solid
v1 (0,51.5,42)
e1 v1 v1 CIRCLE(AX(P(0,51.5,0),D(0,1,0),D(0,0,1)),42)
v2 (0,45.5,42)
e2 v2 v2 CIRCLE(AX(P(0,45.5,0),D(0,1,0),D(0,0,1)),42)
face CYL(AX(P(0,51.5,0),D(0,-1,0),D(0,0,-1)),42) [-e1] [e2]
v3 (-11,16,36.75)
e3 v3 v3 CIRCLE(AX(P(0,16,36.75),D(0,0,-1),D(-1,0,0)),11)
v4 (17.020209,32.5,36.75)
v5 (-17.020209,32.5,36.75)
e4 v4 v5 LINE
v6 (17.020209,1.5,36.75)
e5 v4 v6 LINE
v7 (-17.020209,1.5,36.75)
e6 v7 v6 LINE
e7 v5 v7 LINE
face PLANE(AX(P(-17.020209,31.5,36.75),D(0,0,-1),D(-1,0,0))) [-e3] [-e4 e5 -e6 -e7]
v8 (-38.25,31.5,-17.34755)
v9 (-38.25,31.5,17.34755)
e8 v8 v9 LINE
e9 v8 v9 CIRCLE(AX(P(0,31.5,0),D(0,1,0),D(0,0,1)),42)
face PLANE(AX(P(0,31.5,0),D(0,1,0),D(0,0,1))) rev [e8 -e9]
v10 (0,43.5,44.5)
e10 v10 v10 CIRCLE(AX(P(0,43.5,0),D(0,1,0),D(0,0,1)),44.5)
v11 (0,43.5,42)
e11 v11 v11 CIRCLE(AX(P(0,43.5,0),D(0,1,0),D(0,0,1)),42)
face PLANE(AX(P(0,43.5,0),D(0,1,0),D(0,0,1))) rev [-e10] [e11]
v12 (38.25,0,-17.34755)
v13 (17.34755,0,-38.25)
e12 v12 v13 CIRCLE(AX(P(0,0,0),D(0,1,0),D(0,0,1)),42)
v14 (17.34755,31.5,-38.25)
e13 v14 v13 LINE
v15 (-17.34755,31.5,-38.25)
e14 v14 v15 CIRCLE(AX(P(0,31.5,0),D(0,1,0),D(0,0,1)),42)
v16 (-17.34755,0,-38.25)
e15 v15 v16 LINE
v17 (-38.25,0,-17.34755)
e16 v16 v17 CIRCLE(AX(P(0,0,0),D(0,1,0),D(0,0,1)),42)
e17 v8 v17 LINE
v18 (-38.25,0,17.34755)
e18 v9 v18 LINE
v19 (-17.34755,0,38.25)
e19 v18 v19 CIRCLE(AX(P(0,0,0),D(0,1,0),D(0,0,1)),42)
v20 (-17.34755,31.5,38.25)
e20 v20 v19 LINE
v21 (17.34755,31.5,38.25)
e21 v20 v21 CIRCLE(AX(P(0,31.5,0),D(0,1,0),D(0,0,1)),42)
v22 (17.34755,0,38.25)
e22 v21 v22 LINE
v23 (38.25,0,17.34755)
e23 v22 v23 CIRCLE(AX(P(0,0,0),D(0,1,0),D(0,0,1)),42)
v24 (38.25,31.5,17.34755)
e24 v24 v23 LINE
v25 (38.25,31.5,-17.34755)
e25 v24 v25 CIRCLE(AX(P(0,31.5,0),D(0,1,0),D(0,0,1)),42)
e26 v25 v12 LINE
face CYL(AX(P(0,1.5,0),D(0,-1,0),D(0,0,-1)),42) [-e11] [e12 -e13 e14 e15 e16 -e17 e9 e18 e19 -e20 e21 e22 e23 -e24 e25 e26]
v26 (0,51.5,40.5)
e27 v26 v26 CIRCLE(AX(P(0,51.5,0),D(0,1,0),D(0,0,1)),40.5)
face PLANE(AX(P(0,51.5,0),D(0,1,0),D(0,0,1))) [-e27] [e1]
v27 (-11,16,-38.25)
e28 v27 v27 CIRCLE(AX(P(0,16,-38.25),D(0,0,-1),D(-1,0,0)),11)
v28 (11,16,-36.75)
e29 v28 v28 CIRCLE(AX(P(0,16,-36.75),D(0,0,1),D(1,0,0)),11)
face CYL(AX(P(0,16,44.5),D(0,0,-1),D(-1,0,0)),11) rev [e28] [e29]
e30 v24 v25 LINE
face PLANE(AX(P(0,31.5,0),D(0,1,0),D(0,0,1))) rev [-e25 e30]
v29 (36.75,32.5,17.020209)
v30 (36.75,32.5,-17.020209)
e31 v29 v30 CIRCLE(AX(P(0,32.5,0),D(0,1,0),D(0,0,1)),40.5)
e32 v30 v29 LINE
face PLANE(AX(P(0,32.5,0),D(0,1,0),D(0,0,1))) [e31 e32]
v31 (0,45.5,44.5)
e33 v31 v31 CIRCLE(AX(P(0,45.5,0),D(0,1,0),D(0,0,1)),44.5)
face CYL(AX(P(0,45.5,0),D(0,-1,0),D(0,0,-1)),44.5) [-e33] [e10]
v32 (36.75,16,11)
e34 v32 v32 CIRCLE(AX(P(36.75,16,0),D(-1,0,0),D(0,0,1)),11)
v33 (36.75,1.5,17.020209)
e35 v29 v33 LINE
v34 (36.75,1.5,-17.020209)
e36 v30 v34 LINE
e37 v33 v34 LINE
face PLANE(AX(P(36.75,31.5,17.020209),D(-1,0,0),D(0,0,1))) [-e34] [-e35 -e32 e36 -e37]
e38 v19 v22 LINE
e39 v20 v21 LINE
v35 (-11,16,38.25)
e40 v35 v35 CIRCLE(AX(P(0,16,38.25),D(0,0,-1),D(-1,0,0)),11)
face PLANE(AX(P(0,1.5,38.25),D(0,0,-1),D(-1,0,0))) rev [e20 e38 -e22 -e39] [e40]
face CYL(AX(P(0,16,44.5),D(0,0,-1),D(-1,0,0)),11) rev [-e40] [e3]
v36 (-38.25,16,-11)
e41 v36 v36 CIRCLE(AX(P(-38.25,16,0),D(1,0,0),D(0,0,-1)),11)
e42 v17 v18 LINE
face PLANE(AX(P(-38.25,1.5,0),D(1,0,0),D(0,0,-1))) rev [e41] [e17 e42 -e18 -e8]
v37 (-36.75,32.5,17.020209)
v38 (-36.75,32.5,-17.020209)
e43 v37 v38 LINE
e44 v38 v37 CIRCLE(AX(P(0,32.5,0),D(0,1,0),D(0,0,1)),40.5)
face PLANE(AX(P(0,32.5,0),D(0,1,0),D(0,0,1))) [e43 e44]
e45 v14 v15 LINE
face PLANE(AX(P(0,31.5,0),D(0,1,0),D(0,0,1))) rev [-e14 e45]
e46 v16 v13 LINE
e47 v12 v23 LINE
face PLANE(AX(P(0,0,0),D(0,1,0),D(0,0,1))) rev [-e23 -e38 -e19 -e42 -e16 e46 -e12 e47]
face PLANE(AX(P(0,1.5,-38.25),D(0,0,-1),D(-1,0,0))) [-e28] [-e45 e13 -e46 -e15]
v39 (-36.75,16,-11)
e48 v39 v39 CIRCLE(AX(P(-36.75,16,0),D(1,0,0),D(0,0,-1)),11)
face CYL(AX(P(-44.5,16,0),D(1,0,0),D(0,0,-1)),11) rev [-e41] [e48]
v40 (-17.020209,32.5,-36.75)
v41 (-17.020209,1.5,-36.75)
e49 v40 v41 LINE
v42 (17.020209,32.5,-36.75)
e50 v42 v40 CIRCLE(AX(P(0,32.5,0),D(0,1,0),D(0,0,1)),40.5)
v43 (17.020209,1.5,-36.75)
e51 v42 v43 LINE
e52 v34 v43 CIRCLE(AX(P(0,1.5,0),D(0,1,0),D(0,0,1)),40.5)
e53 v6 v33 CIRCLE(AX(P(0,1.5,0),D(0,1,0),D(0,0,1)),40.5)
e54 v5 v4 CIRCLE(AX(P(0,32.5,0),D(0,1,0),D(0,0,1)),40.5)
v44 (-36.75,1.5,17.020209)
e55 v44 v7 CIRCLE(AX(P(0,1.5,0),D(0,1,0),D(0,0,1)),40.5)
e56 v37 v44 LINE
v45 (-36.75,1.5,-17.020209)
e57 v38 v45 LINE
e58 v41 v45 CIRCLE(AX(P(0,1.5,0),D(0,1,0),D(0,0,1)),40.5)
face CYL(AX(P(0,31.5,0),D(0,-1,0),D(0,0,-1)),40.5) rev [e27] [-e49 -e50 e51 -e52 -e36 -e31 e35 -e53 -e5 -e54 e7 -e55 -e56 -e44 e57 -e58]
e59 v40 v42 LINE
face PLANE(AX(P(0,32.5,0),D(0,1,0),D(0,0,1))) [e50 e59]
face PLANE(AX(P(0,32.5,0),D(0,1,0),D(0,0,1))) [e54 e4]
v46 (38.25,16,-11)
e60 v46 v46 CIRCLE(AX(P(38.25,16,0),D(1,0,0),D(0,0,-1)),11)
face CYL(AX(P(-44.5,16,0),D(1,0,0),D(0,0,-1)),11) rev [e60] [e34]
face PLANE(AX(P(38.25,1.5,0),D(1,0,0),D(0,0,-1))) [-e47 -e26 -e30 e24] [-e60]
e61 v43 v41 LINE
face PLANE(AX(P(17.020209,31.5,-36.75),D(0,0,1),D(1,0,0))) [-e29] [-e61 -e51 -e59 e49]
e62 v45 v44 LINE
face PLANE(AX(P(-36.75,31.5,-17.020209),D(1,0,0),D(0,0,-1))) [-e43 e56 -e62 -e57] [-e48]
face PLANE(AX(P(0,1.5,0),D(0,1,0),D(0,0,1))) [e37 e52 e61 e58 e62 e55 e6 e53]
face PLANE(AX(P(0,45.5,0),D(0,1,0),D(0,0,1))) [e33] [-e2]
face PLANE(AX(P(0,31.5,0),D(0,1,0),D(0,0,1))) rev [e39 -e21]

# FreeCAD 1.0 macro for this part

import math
import FreeCAD as App
import Part
import Sketcher

V = App.Vector
Q = App.Units.Quantity

doc = App.newDocument("Part")
params = doc.addObject("Spreadsheet::Sheet", "Params")
for row, (alias, value) in enumerate([
    ("sketch1_radius", "42 mm"),
    ("pad1_length", "1.5 mm"),
    ("sketch2_radius", "42 mm"),
    ("sketch2_radius2", "40.5 mm"),
    ("pad2_length", "30 mm"),
    ("sketch3_diameter", "84 mm"),
    ("sketch3_radius", "40.5 mm"),
    ("pad3_length", "1 mm"),
    ("sketch4_diameter", "84 mm"),
    ("sketch4_diameter2", "81 mm"),
    ("pad4_length", "11 mm"),
    ("sketch5_diameter", "89 mm"),
    ("sketch5_diameter2", "81 mm"),
    ("pad5_length", "2 mm"),
    ("sketch6_diameter", "84 mm"),
    ("sketch6_diameter2", "81 mm"),
    ("pad6_length", "6 mm"),
    ("sketch7_diameter", "22 mm"),
], start=1):
    params.set(f"A{row}", alias)
    params.set(f"B{row}", "=" + value)
    params.setAlias(f"B{row}", alias)

body = doc.addObject("PartDesign::Body", "Body")

sketch1 = body.newObject("Sketcher::SketchObject", "Sketch")
sketch1.AttachmentSupport = (doc.getObject("XZ_Plane"), [""])
sketch1.MapMode = "FlatFace"
sketch1.addGeometry([
    Part.LineSegment(V(17, -38, 0), V(-17, -38, 0)),
    Part.ArcOfCircle(Part.Circle(V(0, 0, 0), V(0, 0, 1), 42), math.radians(-156), math.radians(-114)),
    Part.LineSegment(V(-38, -17, 0), V(-38, 17, 0)),
    Part.ArcOfCircle(Part.Circle(V(0, 0, 0), V(0, 0, 1), 42), math.radians(114), math.radians(156)),
    Part.LineSegment(V(-17, 38, 0), V(17, 38, 0)),
    Part.ArcOfCircle(Part.Circle(V(0, 0, 0), V(0, 0, 1), 42), math.radians(24), math.radians(66)),
    Part.LineSegment(V(38, 17, 0), V(38, -17, 0)),
    Part.ArcOfCircle(Part.Circle(V(0, 0, 0), V(0, 0, 1), 42), math.radians(-66), math.radians(-24)),
], False)
sketch1.addConstraint([
    Sketcher.Constraint("Coincident", 0, 2, 1, 2),
    Sketcher.Constraint("Coincident", 1, 1, 2, 1),
    Sketcher.Constraint("Coincident", 2, 2, 3, 2),
    Sketcher.Constraint("Coincident", 3, 1, 4, 1),
    Sketcher.Constraint("Coincident", 4, 2, 5, 2),
    Sketcher.Constraint("Coincident", 5, 1, 6, 1),
    Sketcher.Constraint("Coincident", 6, 2, 7, 2),
    Sketcher.Constraint("Coincident", 7, 1, 0, 1),
    Sketcher.Constraint("Horizontal", 0),
    Sketcher.Constraint("Vertical", 2),
    Sketcher.Constraint("Horizontal", 4),
    Sketcher.Constraint("Vertical", 6),
    Sketcher.Constraint("Coincident", 1, 3, -1, 1),
    Sketcher.Constraint("Coincident", 3, 3, -1, 1),
    Sketcher.Constraint("Coincident", 5, 3, -1, 1),
    Sketcher.Constraint("Coincident", 7, 3, -1, 1),
    Sketcher.Constraint("Equal", 1, 3),
    Sketcher.Constraint("Equal", 3, 5),
    Sketcher.Constraint("Equal", 5, 7),
    Sketcher.Constraint("Horizontal", 2, 2, 5, 1),
    Sketcher.Constraint("Vertical", 0, 2, 3, 1),
    Sketcher.Constraint("Equal", 4, 2),
    Sketcher.Constraint("Radius", 1, Q("42 mm")),
    Sketcher.Constraint("DistanceY", 0, 2, -1, 1, Q("38.25 mm")),
])
sketch1.setExpression("Constraints[22]", "Params.sketch1_radius")
pad1 = body.newObject("PartDesign::Pad", "Pad")
pad1.Profile = sketch1
pad1.setExpression("Length", "Params.pad1_length")
pad1.Reversed = True

sketch2 = body.newObject("Sketcher::SketchObject", "Sketch001")
sketch2.AttachmentSupport = (doc.getObject("XZ_Plane"), [""])
sketch2.MapMode = "FlatFace"
sketch2.AttachmentOffset = App.Placement(V(0, 0, -1.5), App.Rotation())
sketch2.addGeometry([
    Part.LineSegment(V(-17, 38, 0), V(17, 38, 0)),
    Part.ArcOfCircle(Part.Circle(V(0, 0, 0), V(0, 0, 1), 42), math.radians(24), math.radians(66)),
    Part.LineSegment(V(38, 17, 0), V(38, -17, 0)),
    Part.ArcOfCircle(Part.Circle(V(0, 0, 0), V(0, 0, 1), 42), math.radians(-66), math.radians(-24)),
    Part.LineSegment(V(17, -38, 0), V(-17, -38, 0)),
    Part.ArcOfCircle(Part.Circle(V(0, 0, 0), V(0, 0, 1), 42), math.radians(-156), math.radians(-114)),
    Part.LineSegment(V(-38, -17, 0), V(-38, 17, 0)),
    Part.ArcOfCircle(Part.Circle(V(0, 0, 0), V(0, 0, 1), 42), math.radians(114), math.radians(156)),
    Part.LineSegment(V(17, 37, 0), V(-17, 37, 0)),
    Part.ArcOfCircle(Part.Circle(V(0, 0, 0), V(0, 0, 1), 40), math.radians(115), math.radians(155)),
    Part.LineSegment(V(-37, 17, 0), V(-37, -17, 0)),
    Part.ArcOfCircle(Part.Circle(V(0, 0, 0), V(0, 0, 1), 40), math.radians(-155), math.radians(-115)),
    Part.LineSegment(V(-17, -37, 0), V(17, -37, 0)),
    Part.ArcOfCircle(Part.Circle(V(0, 0, 0), V(0, 0, 1), 40), math.radians(-65), math.radians(-25)),
    Part.LineSegment(V(37, -17, 0), V(37, 17, 0)),
    Part.ArcOfCircle(Part.Circle(V(0, 0, 0), V(0, 0, 1), 40), math.radians(25), math.radians(65)),
], False)
sketch2.addConstraint([
    Sketcher.Constraint("Coincident", 0, 2, 1, 2),
    Sketcher.Constraint("Coincident", 1, 1, 2, 1),
    Sketcher.Constraint("Coincident", 2, 2, 3, 2),
    Sketcher.Constraint("Coincident", 3, 1, 4, 1),
    Sketcher.Constraint("Coincident", 4, 2, 5, 2),
    Sketcher.Constraint("Coincident", 5, 1, 6, 1),
    Sketcher.Constraint("Coincident", 6, 2, 7, 2),
    Sketcher.Constraint("Coincident", 7, 1, 0, 1),
    Sketcher.Constraint("Coincident", 8, 2, 9, 1),
    Sketcher.Constraint("Coincident", 9, 2, 10, 1),
    Sketcher.Constraint("Coincident", 10, 2, 11, 1),
    Sketcher.Constraint("Coincident", 11, 2, 12, 1),
    Sketcher.Constraint("Coincident", 12, 2, 13, 1),
    Sketcher.Constraint("Coincident", 13, 2, 14, 1),
    Sketcher.Constraint("Coincident", 14, 2, 15, 1),
    Sketcher.Constraint("Coincident", 15, 2, 8, 1),
    Sketcher.Constraint("Horizontal", 0),
    Sketcher.Constraint("Vertical", 2),
    Sketcher.Constraint("Horizontal", 4),
    Sketcher.Constraint("Vertical", 6),
    Sketcher.Constraint("Horizontal", 8),
    Sketcher.Constraint("Vertical", 10),
    Sketcher.Constraint("Horizontal", 12),
    Sketcher.Constraint("Vertical", 14),
    Sketcher.Constraint("Coincident", 1, 3, -1, 1),
    Sketcher.Constraint("Coincident", 3, 3, -1, 1),
    Sketcher.Constraint("Coincident", 5, 3, -1, 1),
    Sketcher.Constraint("Coincident", 7, 3, -1, 1),
    Sketcher.Constraint("Coincident", 9, 3, -1, 1),
    Sketcher.Constraint("Coincident", 11, 3, -1, 1),
    Sketcher.Constraint("Coincident", 13, 3, -1, 1),
    Sketcher.Constraint("Coincident", 15, 3, -1, 1),
    Sketcher.Constraint("Equal", 1, 3),
    Sketcher.Constraint("Equal", 3, 5),
    Sketcher.Constraint("Equal", 5, 7),
    Sketcher.Constraint("Equal", 9, 11),
    Sketcher.Constraint("Equal", 11, 13),
    Sketcher.Constraint("Equal", 13, 15),
    Sketcher.Constraint("Horizontal", 2, 2, 5, 1),
    Sketcher.Constraint("Horizontal", 10, 2, 13, 2),
    Sketcher.Constraint("Vertical", 0, 2, 3, 1),
    Sketcher.Constraint("Vertical", 8, 2, 11, 2),
    Sketcher.Constraint("Equal", 4, 2),
    Sketcher.Constraint("Equal", 12, 10),
    Sketcher.Constraint("Radius", 1, Q("42 mm")),
    Sketcher.Constraint("Radius", 9, Q("40.5 mm")),
    Sketcher.Constraint("DistanceY", 8, 2, 7, 1, Q("1.5 mm")),
    Sketcher.Constraint("DistanceY", -1, 1, 0, 2, Q("38.25 mm")),
])
sketch2.setExpression("Constraints[44]", "Params.sketch2_radius")
sketch2.setExpression("Constraints[45]", "Params.sketch2_radius2")
pad2 = body.newObject("PartDesign::Pad", "Pad001")
pad2.Profile = sketch2
pad2.setExpression("Length", "Params.pad2_length")
pad2.Reversed = True

sketch3 = body.newObject("Sketcher::SketchObject", "Sketch002")
sketch3.AttachmentSupport = (doc.getObject("XZ_Plane"), [""])
sketch3.MapMode = "FlatFace"
sketch3.AttachmentOffset = App.Placement(V(0, 0, -31.5), App.Rotation())
sketch3.addGeometry([
    Part.Circle(V(0, 0, 0), V(0, 0, 1), 42),
    Part.LineSegment(V(-37, 17, 0), V(-37, -17, 0)),
    Part.ArcOfCircle(Part.Circle(V(0, 0, 0), V(0, 0, 1), 40), math.radians(-155), math.radians(-115)),
    Part.LineSegment(V(-17, -37, 0), V(17, -37, 0)),
    Part.ArcOfCircle(Part.Circle(V(0, 0, 0), V(0, 0, 1), 40), math.radians(-65), math.radians(-25)),
    Part.LineSegment(V(37, -17, 0), V(37, 17, 0)),
    Part.ArcOfCircle(Part.Circle(V(0, 0, 0), V(0, 0, 1), 40), math.radians(25), math.radians(65)),
    Part.LineSegment(V(17, 37, 0), V(-17, 37, 0)),
    Part.ArcOfCircle(Part.Circle(V(0, 0, 0), V(0, 0, 1), 40), math.radians(115), math.radians(155)),
], False)
sketch3.addConstraint([
    Sketcher.Constraint("Coincident", 1, 2, 2, 1),
    Sketcher.Constraint("Coincident", 2, 2, 3, 1),
    Sketcher.Constraint("Coincident", 3, 2, 4, 1),
    Sketcher.Constraint("Coincident", 4, 2, 5, 1),
    Sketcher.Constraint("Coincident", 5, 2, 6, 1),
    Sketcher.Constraint("Coincident", 6, 2, 7, 1),
    Sketcher.Constraint("Coincident", 7, 2, 8, 1),
    Sketcher.Constraint("Coincident", 8, 2, 1, 1),
    Sketcher.Constraint("Vertical", 1),
    Sketcher.Constraint("Horizontal", 3),
    Sketcher.Constraint("Vertical", 5),
    Sketcher.Constraint("Horizontal", 7),
    Sketcher.Constraint("Coincident", 0, 3, -1, 1),
    Sketcher.Constraint("Coincident", 2, 3, -1, 1),
    Sketcher.Constraint("Coincident", 4, 3, -1, 1),
    Sketcher.Constraint("Coincident", 6, 3, -1, 1),
    Sketcher.Constraint("Coincident", 8, 3, -1, 1),
    Sketcher.Constraint("Equal", 2, 4),
    Sketcher.Constraint("Equal", 4, 6),
    Sketcher.Constraint("Equal", 6, 8),
    Sketcher.Constraint("Horizontal", 1, 2, 4, 2),
    Sketcher.Constraint("Vertical", 3, 2, 6, 2),
    Sketcher.Constraint("Equal", 7, 1),
    Sketcher.Constraint("Diameter", 0, Q("84 mm")),
    Sketcher.Constraint("Radius", 2, Q("40.5 mm")),
    Sketcher.Constraint("DistanceX", 1, 2, -1, 1, Q("36.75 mm")),
])
sketch3.setExpression("Constraints[23]", "Params.sketch3_diameter")
sketch3.setExpression("Constraints[24]", "Params.sketch3_radius")
pad3 = body.newObject("PartDesign::Pad", "Pad002")
pad3.Profile = sketch3
pad3.setExpression("Length", "Params.pad3_length")
pad3.Reversed = True

sketch4 = body.newObject("Sketcher::SketchObject", "Sketch003")
sketch4.AttachmentSupport = (doc.getObject("XZ_Plane"), [""])
sketch4.MapMode = "FlatFace"
sketch4.AttachmentOffset = App.Placement(V(0, 0, -32.5), App.Rotation())
sketch4.addGeometry([
    Part.Circle(V(0, 0, 0), V(0, 0, 1), 42),
    Part.Circle(V(0, 0, 0), V(0, 0, 1), 40),
], False)
sketch4.addConstraint([
    Sketcher.Constraint("Coincident", 0, 3, -1, 1),
    Sketcher.Constraint("Coincident", 1, 3, -1, 1),
    Sketcher.Constraint("Diameter", 0, Q("84 mm")),
    Sketcher.Constraint("Diameter", 1, Q("81 mm")),
])
sketch4.setExpression("Constraints[2]", "Params.sketch4_diameter")
sketch4.setExpression("Constraints[3]", "Params.sketch4_diameter2")
pad4 = body.newObject("PartDesign::Pad", "Pad003")
pad4.Profile = sketch4
pad4.setExpression("Length", "Params.pad4_length")
pad4.Reversed = True

sketch5 = body.newObject("Sketcher::SketchObject", "Sketch004")
sketch5.AttachmentSupport = (doc.getObject("XZ_Plane"), [""])
sketch5.MapMode = "FlatFace"
sketch5.AttachmentOffset = App.Placement(V(0, 0, -43.5), App.Rotation())
sketch5.addGeometry([
    Part.Circle(V(0, 0, 0), V(0, 0, 1), 44),
    Part.Circle(V(0, 0, 0), V(0, 0, 1), 40),
], False)
sketch5.addConstraint([
    Sketcher.Constraint("Coincident", 0, 3, -1, 1),
    Sketcher.Constraint("Coincident", 1, 3, -1, 1),
    Sketcher.Constraint("Diameter", 0, Q("89 mm")),
    Sketcher.Constraint("Diameter", 1, Q("81 mm")),
])
sketch5.setExpression("Constraints[2]", "Params.sketch5_diameter")
sketch5.setExpression("Constraints[3]", "Params.sketch5_diameter2")
pad5 = body.newObject("PartDesign::Pad", "Pad004")
pad5.Profile = sketch5
pad5.setExpression("Length", "Params.pad5_length")
pad5.Reversed = True

sketch6 = body.newObject("Sketcher::SketchObject", "Sketch005")
sketch6.AttachmentSupport = (doc.getObject("XZ_Plane"), [""])
sketch6.MapMode = "FlatFace"
sketch6.AttachmentOffset = App.Placement(V(0, 0, -45.5), App.Rotation())
sketch6.addGeometry([
    Part.Circle(V(0, 0, 0), V(0, 0, 1), 42),
    Part.Circle(V(0, 0, 0), V(0, 0, 1), 40),
], False)
sketch6.addConstraint([
    Sketcher.Constraint("Coincident", 0, 3, -1, 1),
    Sketcher.Constraint("Coincident", 1, 3, -1, 1),
    Sketcher.Constraint("Diameter", 0, Q("84 mm")),
    Sketcher.Constraint("Diameter", 1, Q("81 mm")),
])
sketch6.setExpression("Constraints[2]", "Params.sketch6_diameter")
sketch6.setExpression("Constraints[3]", "Params.sketch6_diameter2")
pad6 = body.newObject("PartDesign::Pad", "Pad005")
pad6.Profile = sketch6
pad6.setExpression("Length", "Params.pad6_length")
pad6.Reversed = True

sketch7 = body.newObject("Sketcher::SketchObject", "Sketch006")
sketch7.AttachmentSupport = (doc.getObject("YZ_Plane"), [""])
sketch7.MapMode = "FlatFace"
sketch7.AttachmentOffset = App.Placement(V(0, 0, 38.25), App.Rotation())
sketch7.addGeometry(Part.Circle(V(16, 0, 0), V(0, 0, 1), 11), False)
sketch7.addConstraint([
    Sketcher.Constraint("PointOnObject", 0, 3, -1),
    Sketcher.Constraint("Diameter", 0, Q("22 mm")),
    Sketcher.Constraint("DistanceX", -1, 1, 0, 3, Q("16 mm")),
])
sketch7.setExpression("Constraints[1]", "Params.sketch7_diameter")
pocket1 = body.newObject("PartDesign::Pocket", "Pocket")
pocket1.Profile = sketch7
pocket1.Type = "ThroughAll"
doc.recompute()

polarpattern = body.newObject("PartDesign::PolarPattern", "PolarPattern")
polarpattern.Originals = [pocket1]
polarpattern.Axis = (doc.getObject("Y_Axis"), [""])
polarpattern.Angle = 90
polarpattern.Occurrences = 2
polarpattern.Reversed = True
body.Tip = polarpattern

doc.recompute()
